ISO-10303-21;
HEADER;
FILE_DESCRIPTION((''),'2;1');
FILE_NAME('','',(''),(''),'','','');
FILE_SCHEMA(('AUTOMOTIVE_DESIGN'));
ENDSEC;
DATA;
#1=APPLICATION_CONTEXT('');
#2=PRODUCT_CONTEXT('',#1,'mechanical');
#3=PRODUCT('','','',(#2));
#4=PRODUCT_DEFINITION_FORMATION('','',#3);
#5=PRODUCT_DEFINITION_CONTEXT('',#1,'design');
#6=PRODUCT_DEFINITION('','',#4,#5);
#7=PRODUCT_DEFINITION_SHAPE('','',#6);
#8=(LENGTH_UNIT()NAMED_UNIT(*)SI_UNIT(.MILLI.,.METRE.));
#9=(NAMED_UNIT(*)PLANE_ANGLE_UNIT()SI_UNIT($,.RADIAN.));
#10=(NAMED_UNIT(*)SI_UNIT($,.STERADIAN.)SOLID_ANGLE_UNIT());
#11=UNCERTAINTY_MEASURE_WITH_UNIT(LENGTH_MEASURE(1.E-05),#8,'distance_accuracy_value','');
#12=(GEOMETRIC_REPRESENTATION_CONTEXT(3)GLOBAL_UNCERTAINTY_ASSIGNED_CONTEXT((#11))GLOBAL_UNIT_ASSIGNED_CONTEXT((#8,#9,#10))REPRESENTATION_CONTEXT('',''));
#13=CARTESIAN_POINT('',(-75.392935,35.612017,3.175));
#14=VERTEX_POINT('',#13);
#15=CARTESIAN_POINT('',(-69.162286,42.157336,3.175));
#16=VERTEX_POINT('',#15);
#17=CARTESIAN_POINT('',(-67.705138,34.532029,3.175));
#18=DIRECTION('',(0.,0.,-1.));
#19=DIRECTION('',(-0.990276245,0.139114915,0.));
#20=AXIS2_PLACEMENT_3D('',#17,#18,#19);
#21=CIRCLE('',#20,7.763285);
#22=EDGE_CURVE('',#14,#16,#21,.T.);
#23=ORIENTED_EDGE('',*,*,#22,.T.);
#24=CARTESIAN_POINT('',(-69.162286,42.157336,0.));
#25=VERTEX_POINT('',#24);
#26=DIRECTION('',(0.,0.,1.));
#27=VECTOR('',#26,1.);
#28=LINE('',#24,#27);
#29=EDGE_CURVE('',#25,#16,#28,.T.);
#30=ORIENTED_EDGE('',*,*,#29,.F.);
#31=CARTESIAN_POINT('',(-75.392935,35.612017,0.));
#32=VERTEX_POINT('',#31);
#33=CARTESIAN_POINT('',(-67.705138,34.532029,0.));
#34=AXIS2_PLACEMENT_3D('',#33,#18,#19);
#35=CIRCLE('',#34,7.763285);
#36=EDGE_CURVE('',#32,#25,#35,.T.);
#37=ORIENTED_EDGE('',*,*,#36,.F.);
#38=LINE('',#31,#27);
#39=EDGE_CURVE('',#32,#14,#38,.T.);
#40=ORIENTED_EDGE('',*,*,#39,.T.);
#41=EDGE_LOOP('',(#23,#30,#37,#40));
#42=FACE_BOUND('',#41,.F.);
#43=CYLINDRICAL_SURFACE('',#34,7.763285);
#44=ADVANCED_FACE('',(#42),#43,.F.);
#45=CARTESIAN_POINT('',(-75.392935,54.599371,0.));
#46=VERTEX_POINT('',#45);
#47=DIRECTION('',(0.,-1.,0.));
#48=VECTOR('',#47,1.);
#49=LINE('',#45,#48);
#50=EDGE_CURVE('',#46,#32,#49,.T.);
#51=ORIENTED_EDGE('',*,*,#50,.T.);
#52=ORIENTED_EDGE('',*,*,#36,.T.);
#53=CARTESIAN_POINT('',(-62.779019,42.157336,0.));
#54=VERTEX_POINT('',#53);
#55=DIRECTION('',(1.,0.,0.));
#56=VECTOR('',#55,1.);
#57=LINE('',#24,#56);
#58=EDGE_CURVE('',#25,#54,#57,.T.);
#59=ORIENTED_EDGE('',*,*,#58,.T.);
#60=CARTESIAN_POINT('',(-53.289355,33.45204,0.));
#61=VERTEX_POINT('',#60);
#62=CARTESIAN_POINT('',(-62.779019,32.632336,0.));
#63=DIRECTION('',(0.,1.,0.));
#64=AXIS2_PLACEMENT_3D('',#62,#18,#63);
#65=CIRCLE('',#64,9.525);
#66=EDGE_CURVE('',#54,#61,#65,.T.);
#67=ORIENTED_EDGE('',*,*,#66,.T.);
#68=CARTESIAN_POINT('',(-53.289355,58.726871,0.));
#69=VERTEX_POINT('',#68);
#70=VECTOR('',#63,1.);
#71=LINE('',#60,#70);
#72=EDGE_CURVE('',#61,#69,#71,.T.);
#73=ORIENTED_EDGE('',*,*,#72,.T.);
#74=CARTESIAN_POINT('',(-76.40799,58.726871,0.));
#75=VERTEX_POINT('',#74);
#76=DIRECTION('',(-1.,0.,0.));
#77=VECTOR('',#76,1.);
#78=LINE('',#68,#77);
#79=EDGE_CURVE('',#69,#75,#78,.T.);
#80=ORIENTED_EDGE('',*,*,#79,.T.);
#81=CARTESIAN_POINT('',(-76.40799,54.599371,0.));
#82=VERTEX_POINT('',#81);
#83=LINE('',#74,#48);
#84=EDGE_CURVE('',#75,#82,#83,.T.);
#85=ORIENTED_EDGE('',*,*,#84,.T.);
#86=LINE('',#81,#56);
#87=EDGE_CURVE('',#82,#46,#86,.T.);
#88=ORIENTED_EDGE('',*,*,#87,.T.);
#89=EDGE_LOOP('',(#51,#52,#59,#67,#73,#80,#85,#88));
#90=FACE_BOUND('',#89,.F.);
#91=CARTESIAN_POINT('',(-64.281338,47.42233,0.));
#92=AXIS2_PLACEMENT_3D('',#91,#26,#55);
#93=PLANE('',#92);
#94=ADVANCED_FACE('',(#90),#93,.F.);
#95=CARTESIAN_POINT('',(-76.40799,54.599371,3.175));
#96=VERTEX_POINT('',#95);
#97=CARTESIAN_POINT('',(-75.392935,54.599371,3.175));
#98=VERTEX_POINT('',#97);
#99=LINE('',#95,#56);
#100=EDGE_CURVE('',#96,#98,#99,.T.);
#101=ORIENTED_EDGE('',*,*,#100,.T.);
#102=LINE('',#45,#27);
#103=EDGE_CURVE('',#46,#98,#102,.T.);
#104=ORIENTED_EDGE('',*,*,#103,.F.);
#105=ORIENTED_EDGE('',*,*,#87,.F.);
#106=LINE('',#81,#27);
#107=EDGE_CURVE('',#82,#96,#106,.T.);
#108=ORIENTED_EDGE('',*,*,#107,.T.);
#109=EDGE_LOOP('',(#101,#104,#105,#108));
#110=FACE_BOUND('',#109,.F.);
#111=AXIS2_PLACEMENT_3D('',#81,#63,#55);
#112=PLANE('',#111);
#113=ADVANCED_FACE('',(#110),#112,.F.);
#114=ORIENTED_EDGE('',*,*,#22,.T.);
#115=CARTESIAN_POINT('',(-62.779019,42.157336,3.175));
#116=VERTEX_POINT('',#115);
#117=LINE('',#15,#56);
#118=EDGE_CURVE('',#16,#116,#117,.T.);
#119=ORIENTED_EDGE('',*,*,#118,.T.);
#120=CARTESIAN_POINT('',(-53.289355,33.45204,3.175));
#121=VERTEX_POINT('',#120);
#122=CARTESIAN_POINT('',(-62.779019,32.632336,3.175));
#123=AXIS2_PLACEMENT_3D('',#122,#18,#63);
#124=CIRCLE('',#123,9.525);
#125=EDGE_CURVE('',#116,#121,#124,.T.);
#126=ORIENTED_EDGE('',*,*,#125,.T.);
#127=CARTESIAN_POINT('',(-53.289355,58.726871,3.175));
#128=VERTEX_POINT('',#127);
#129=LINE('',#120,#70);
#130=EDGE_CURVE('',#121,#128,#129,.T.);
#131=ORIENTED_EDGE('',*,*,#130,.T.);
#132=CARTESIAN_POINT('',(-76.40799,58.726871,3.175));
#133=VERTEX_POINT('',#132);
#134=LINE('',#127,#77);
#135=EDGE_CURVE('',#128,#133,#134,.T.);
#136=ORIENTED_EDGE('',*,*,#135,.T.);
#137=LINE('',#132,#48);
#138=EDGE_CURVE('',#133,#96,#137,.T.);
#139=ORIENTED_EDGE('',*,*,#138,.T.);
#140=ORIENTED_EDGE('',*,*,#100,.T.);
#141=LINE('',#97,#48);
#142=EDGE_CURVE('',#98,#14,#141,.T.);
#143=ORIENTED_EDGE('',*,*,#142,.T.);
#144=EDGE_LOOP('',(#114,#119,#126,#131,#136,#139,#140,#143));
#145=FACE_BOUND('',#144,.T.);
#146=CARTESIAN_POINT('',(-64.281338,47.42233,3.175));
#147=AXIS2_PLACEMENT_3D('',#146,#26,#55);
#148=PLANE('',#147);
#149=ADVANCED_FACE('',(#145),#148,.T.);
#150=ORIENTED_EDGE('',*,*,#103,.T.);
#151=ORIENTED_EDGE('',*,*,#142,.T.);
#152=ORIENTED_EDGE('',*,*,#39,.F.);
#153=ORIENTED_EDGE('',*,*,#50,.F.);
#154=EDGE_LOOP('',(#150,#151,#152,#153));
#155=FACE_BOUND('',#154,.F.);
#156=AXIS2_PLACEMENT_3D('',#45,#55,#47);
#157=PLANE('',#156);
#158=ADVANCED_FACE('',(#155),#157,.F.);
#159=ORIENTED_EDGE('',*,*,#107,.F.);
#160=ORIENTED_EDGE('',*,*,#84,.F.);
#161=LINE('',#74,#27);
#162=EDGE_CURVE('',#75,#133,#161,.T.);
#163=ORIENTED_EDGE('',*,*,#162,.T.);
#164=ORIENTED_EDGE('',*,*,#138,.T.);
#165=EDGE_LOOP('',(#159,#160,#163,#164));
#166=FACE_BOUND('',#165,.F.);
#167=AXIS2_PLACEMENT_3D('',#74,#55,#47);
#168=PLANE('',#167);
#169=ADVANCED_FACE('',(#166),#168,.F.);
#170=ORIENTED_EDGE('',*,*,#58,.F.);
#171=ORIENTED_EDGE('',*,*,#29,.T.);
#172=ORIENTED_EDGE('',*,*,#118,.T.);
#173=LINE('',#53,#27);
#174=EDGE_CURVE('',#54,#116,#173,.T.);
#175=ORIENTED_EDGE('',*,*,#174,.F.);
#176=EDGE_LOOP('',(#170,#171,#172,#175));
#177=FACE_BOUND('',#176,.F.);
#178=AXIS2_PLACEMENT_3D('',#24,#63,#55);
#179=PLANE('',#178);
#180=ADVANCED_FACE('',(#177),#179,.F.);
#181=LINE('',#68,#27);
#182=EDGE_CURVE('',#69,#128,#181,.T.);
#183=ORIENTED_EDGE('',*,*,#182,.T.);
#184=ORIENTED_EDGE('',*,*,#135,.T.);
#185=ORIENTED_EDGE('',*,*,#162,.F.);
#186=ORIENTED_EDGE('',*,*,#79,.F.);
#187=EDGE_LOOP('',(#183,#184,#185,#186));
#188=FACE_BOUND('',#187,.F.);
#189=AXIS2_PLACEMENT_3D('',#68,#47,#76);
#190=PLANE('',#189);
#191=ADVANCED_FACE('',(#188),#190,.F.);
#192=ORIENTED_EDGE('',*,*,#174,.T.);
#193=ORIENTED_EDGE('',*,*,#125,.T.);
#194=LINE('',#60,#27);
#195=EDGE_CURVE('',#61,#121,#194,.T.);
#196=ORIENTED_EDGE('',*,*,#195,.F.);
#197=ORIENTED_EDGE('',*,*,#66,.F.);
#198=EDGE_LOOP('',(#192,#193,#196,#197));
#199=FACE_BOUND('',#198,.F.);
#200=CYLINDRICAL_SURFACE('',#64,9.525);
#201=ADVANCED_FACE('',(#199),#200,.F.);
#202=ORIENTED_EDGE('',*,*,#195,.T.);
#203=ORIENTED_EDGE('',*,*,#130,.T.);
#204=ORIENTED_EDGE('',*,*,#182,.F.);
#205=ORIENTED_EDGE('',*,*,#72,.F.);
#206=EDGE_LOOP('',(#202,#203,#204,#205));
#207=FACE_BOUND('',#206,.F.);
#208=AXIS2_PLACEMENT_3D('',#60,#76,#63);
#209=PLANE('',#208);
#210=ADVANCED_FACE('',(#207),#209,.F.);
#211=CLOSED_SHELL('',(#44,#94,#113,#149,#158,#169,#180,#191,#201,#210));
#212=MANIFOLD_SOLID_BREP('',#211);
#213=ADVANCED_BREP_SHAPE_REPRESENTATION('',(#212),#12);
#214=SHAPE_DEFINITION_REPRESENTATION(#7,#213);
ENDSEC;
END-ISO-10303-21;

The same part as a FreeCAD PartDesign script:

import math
import FreeCAD as App
import Part
import Sketcher
Q = App.Units.Quantity

doc = App.newDocument("Part")
body = doc.addObject("PartDesign::Body", "Body")

# Sketch on XY plane
sketch1 = body.newObject("Sketcher::SketchObject", "Sketch")
sketch1.AttachmentSupport = (doc.getObject("XY_Plane"), [""])
sketch1.MapMode = "FlatFace"
sketch1.addGeometry([
    Part.LineSegment(App.Vector(-53.3, 58.7, 0), App.Vector(-76.4, 58.7, 0)),  # 0
    Part.LineSegment(App.Vector(-76.4, 58.7, 0), App.Vector(-76.4, 54.6, 0)),  # 1
    Part.LineSegment(App.Vector(-76.4, 54.6, 0), App.Vector(-75.4, 54.6, 0)),  # 2
    Part.LineSegment(App.Vector(-75.4, 54.6, 0), App.Vector(-75.4, 35.6, 0)),  # 3
    Part.ArcOfCircle(Part.Circle(App.Vector(-67.7, 34.5, 0), App.Vector(0, 0, 1), 7.8), math.radians(101), math.radians(172)),  # 4
    Part.LineSegment(App.Vector(-69.2, 42.2, 0), App.Vector(-62.8, 42.2, 0)),  # 5
    Part.ArcOfCircle(Part.Circle(App.Vector(-62.8, 32.6, 0), App.Vector(0, 0, 1), 9.5), math.radians(5), math.radians(90)),  # 6
    Part.LineSegment(App.Vector(-53.3, 33.5, 0), App.Vector(-53.3, 58.7, 0)),  # 7
], False)
sketch1.addConstraint([
    Sketcher.Constraint("Coincident", 0, 2, 1, 1),
    Sketcher.Constraint("Coincident", 1, 2, 2, 1),
    Sketcher.Constraint("Coincident", 2, 2, 3, 1),
    Sketcher.Constraint("Coincident", 3, 2, 4, 2),
    Sketcher.Constraint("Coincident", 4, 1, 5, 1),
    Sketcher.Constraint("Tangent", 5, 2, 6, 2),
    Sketcher.Constraint("Coincident", 6, 1, 7, 1),
    Sketcher.Constraint("Coincident", 7, 2, 0, 1),
    Sketcher.Constraint("Horizontal", 0),
    Sketcher.Constraint("Vertical", 1),
    Sketcher.Constraint("Horizontal", 2),
    Sketcher.Constraint("Vertical", 3),
    Sketcher.Constraint("Horizontal", 5),
    Sketcher.Constraint("Vertical", 7),
    Sketcher.Constraint("Radius", 6, Q("0.375 in")),
    Sketcher.Constraint("DistanceY", 1, 2, 1, 1, Q("0.1625 in")),
    Sketcher.Constraint("Radius", 4, 7.763285),
    Sketcher.Constraint("DistanceY", 7, 1, 7, 2, 25.274832),
    Sketcher.Constraint("DistanceX", 0, 2, 0, 1, 23.118635),
    Sketcher.Constraint("DistanceX", 2, 1, 2, 2, 1.015055),
    Sketcher.Constraint("DistanceX", 5, 1, 5, 2, 6.383268),
    Sketcher.Constraint("DistanceY", 3, 2, 3, 1, 18.987354),
    Sketcher.Constraint("DistanceX", 4, 3, -1, 1, 67.705138),
    Sketcher.Constraint("DistanceY", -1, 1, 4, 3, 34.532029),
    Sketcher.Constraint("DistanceX", 6, 3, -1, 1, 62.779019),
])
pad1 = body.newObject("PartDesign::Pad", "Pad")
pad1.Profile = sketch1
pad1.Length = Q("0.125 in")

doc.recompute()
